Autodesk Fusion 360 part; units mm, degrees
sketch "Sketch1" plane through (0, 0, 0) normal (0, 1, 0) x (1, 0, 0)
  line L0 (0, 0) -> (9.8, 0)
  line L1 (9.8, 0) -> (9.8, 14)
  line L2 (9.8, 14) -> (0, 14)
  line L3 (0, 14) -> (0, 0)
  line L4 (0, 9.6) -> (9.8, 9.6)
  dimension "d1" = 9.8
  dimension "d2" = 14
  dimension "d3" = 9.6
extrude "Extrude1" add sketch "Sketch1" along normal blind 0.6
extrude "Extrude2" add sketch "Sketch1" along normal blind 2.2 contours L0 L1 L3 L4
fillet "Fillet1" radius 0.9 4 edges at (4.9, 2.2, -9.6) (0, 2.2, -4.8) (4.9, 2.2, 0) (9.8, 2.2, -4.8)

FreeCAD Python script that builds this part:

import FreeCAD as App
import Part
import Sketcher
Q = App.Units.Quantity


def edges_at(feature, points):
    """Names of the edges that pass closest to the given points."""
    edges = feature.Shape.Edges
    near = lambda p: min(range(len(edges)), key=lambda i: edges[i].distToShape(Part.Vertex(*p))[0])
    return sorted({f"Edge{near(p) + 1}" for p in points})

doc = App.newDocument("Part")
body = doc.addObject("PartDesign::Body", "Body")

# Sketch on XZ plane
sketch1 = doc.addObject("Sketcher::SketchObject", "Sketch")
body.addObject(sketch1)
sketch1.AttachmentSupport = (doc.XZ_Plane, [""])
sketch1.MapMode = "FlatFace"
sketch1.addGeometry([
    Part.LineSegment(App.Vector(0, 0, 0), App.Vector(10, 0, 0)),
    Part.LineSegment(App.Vector(10, 0, 0), App.Vector(10, -14, 0)),
    Part.LineSegment(App.Vector(10, -14, 0), App.Vector(0, -14, 0)),
    Part.LineSegment(App.Vector(0, -14, 0), App.Vector(0, 0, 0)),
], False)
sketch1.addConstraint([
    Sketcher.Constraint("Coincident", 0, 2, 1, 1),
    Sketcher.Constraint("Coincident", 1, 2, 2, 1),
    Sketcher.Constraint("Coincident", 2, 2, 3, 1),
    Sketcher.Constraint("Coincident", 3, 2, 0, 1),
    Sketcher.Constraint("Horizontal", 0),
    Sketcher.Constraint("Vertical", 1),
    Sketcher.Constraint("Horizontal", 2),
    Sketcher.Constraint("Vertical", 3),
    Sketcher.Constraint("Coincident", 3, 2, -1, 1),
    Sketcher.Constraint("DistanceY", 1, 2, 1, 1, Q("14 mm")),
    Sketcher.Constraint("DistanceX", 0, 1, 0, 2, Q("9.8 mm")),
])
pad1 = doc.addObject("PartDesign::Pad", "Pad")
body.addObject(pad1)
pad1.Profile = sketch1
pad1.Length = 0.6
pad1.Reversed = True

# Sketch on XZ plane
sketch2 = doc.addObject("Sketcher::SketchObject", "Sketch001")
body.addObject(sketch2)
sketch2.AttachmentSupport = (doc.XZ_Plane, [""])
sketch2.MapMode = "FlatFace"
sketch2.addGeometry([
    Part.LineSegment(App.Vector(0, -10, 0), App.Vector(0, 0, 0)),
    Part.LineSegment(App.Vector(0, 0, 0), App.Vector(10, 0, 0)),
    Part.LineSegment(App.Vector(10, 0, 0), App.Vector(10, -10, 0)),
    Part.LineSegment(App.Vector(10, -10, 0), App.Vector(0, -10, 0)),
], False)
sketch2.addConstraint([
    Sketcher.Constraint("Coincident", 0, 2, 1, 1),
    Sketcher.Constraint("Coincident", 1, 2, 2, 1),
    Sketcher.Constraint("Coincident", 2, 2, 3, 1),
    Sketcher.Constraint("Coincident", 3, 2, 0, 1),
    Sketcher.Constraint("Vertical", 0),
    Sketcher.Constraint("Horizontal", 1),
    Sketcher.Constraint("Vertical", 2),
    Sketcher.Constraint("Horizontal", 3),
    Sketcher.Constraint("Coincident", 0, 2, -1, 1),
    Sketcher.Constraint("DistanceX", 1, 1, 1, 2, Q("9.8 mm")),
    Sketcher.Constraint("DistanceY", 0, 1, 0, 2, Q("9.6 mm")),
])
pad2 = doc.addObject("PartDesign::Pad", "Pad001")
body.addObject(pad2)
pad2.Profile = sketch2
pad2.Length = 2.2
pad2.Reversed = True
doc.recompute()

fillet = doc.addObject("PartDesign::Fillet", "Fillet")
body.addObject(fillet)
fillet.Base = (pad2, edges_at(pad2, [
    (4.9, 2.2, -9.6),
    (0, 2.2, -4.8),
    (4.9, 2.2, 0),
    (9.8, 2.2, -4.8),
]))
fillet.Radius = 0.9

doc.recompute()
